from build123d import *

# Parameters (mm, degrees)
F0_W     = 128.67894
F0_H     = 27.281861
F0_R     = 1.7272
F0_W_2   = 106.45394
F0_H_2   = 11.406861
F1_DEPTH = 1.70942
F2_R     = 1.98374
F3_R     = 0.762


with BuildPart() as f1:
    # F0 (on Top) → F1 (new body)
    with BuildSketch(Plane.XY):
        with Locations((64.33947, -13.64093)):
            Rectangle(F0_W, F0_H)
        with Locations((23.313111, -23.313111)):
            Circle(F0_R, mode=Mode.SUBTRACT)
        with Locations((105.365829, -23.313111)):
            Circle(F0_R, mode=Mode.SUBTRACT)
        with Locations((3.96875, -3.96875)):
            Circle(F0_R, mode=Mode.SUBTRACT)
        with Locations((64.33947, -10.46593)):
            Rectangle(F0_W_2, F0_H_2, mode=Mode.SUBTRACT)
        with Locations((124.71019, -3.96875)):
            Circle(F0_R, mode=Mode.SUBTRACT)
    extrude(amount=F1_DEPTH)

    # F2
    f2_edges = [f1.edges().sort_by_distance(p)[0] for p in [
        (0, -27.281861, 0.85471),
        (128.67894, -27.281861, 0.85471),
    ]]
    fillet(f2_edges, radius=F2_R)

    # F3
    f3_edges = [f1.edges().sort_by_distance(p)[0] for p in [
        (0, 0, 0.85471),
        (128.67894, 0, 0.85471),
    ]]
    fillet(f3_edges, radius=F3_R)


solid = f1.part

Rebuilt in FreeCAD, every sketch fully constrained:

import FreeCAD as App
import Part
import Sketcher
Q = App.Units.Quantity


def edges_at(feature, points):
    """Names of the edges that pass closest to the given points."""
    edges = feature.Shape.Edges
    near = lambda p: min(range(len(edges)), key=lambda i: edges[i].distToShape(Part.Vertex(*p))[0])
    return sorted({f"Edge{near(p) + 1}" for p in points})


def add_polygon(sketch, points):
    """Adds a closed chain of lines whose ends are joined by coincident constraints."""
    first, n = sketch.GeometryCount, len(points)
    for a, b in zip(points, points[1:] + points[:1]):
        sketch.addGeometry(Part.LineSegment(App.Vector(*a, 0), App.Vector(*b, 0)), False)
    for i in range(n):
        sketch.addConstraint(Sketcher.Constraint("Coincident", first + i, 2, first + (i + 1) % n, 1))

doc = App.newDocument("Part")
body = doc.addObject("PartDesign::Body", "Body")

sketch1 = body.newObject("Sketcher::SketchObject", "Sketch")
sketch1.AttachmentSupport = (doc.getObject("XY_Plane"), [""])
sketch1.MapMode = "FlatFace"
add_polygon(sketch1, [(0, 0), (0, -27.3), (128.7, -27.3), (128.7, 0)])
sketch1.addGeometry(Part.Circle(App.Vector(23.3, -23.3, 0), App.Vector(0, 0, 1), 1.7), False)
sketch1.addGeometry(Part.Circle(App.Vector(105.4, -23.3, 0), App.Vector(0, 0, 1), 1.7), False)
sketch1.addGeometry(Part.Circle(App.Vector(4, -4, 0), App.Vector(0, 0, 1), 1.7), False)
add_polygon(sketch1, [(117.6, -16.2), (11.1, -16.2), (11.1, -4.8), (117.6, -4.8)])
sketch1.addGeometry(Part.Circle(App.Vector(124.7, -4, 0), App.Vector(0, 0, 1), 1.7), False)
sketch1.addConstraint([
    Sketcher.Constraint("Vertical", 0),
    Sketcher.Constraint("Horizontal", 1),
    Sketcher.Constraint("Vertical", 2),
    Sketcher.Constraint("Horizontal", 3),
    Sketcher.Constraint("Horizontal", 7),
    Sketcher.Constraint("Vertical", 8),
    Sketcher.Constraint("Horizontal", 9),
    Sketcher.Constraint("Vertical", 10),
    Sketcher.Constraint("Coincident", 3, 2, -1, 1),
    Sketcher.Constraint("Equal", 4, 5),
    Sketcher.Constraint("Equal", 5, 6),
    Sketcher.Constraint("Equal", 6, 11),
    Sketcher.Constraint("Horizontal", 4, 3, 5, 3),
    Sketcher.Constraint("Horizontal", 6, 3, 11, 3),
    Sketcher.Constraint("Diameter", 4, Q("0.136 in")),
    Sketcher.Constraint("DistanceX", 1, 1, 1, 2, Q("5.0661 in")),
    Sketcher.Constraint("DistanceX", 7, 2, 7, 1, Q("4.1911 in")),
    Sketcher.Constraint("DistanceX", -1, 1, 6, 3, Q("0.15625 in")),
    Sketcher.Constraint("DistanceY", 6, 3, -1, 1, Q("0.15625 in")),
    Sketcher.Constraint("DistanceX", -1, 1, 7, 2, Q("0.4375 in")),
    Sketcher.Constraint("DistanceY", 8, 2, -1, 1, Q("0.1875 in")),
    Sketcher.Constraint("DistanceY", 0, 2, 4, 3, Q("0.15625 in")),
    Sketcher.Constraint("DistanceX", 11, 3, 1, 2, Q("0.15625 in")),
    Sketcher.Constraint("DistanceY", 4, 3, 7, 2, Q("0.28125 in")),
    Sketcher.Constraint("DistanceY", 0, 2, 0, 1, Q("27.281861 mm")),
    Sketcher.Constraint("DistanceX", -1, 1, 4, 3, Q("23.313111 mm")),
    Sketcher.Constraint("DistanceX", -1, 1, 5, 3, Q("105.365829 mm")),
])
pad1 = body.newObject("PartDesign::Pad", "Pad")
pad1.Profile = sketch1
pad1.Length = Q("0.0673 in")
doc.recompute()

fillet = body.newObject("PartDesign::Fillet", "Fillet")
fillet.Base = (pad1, edges_at(pad1, [(0, -27.282, 0.855), (128.679, -27.282, 0.855)]))
fillet.Radius = Q("0.0781 in")
doc.recompute()

fillet2 = body.newObject("PartDesign::Fillet", "Fillet001")
fillet2.Base = (fillet, edges_at(fillet, [(0, 0, 0.855), (128.679, 0, 0.855)]))
fillet2.Radius = Q("0.03 in")

doc.recompute()
